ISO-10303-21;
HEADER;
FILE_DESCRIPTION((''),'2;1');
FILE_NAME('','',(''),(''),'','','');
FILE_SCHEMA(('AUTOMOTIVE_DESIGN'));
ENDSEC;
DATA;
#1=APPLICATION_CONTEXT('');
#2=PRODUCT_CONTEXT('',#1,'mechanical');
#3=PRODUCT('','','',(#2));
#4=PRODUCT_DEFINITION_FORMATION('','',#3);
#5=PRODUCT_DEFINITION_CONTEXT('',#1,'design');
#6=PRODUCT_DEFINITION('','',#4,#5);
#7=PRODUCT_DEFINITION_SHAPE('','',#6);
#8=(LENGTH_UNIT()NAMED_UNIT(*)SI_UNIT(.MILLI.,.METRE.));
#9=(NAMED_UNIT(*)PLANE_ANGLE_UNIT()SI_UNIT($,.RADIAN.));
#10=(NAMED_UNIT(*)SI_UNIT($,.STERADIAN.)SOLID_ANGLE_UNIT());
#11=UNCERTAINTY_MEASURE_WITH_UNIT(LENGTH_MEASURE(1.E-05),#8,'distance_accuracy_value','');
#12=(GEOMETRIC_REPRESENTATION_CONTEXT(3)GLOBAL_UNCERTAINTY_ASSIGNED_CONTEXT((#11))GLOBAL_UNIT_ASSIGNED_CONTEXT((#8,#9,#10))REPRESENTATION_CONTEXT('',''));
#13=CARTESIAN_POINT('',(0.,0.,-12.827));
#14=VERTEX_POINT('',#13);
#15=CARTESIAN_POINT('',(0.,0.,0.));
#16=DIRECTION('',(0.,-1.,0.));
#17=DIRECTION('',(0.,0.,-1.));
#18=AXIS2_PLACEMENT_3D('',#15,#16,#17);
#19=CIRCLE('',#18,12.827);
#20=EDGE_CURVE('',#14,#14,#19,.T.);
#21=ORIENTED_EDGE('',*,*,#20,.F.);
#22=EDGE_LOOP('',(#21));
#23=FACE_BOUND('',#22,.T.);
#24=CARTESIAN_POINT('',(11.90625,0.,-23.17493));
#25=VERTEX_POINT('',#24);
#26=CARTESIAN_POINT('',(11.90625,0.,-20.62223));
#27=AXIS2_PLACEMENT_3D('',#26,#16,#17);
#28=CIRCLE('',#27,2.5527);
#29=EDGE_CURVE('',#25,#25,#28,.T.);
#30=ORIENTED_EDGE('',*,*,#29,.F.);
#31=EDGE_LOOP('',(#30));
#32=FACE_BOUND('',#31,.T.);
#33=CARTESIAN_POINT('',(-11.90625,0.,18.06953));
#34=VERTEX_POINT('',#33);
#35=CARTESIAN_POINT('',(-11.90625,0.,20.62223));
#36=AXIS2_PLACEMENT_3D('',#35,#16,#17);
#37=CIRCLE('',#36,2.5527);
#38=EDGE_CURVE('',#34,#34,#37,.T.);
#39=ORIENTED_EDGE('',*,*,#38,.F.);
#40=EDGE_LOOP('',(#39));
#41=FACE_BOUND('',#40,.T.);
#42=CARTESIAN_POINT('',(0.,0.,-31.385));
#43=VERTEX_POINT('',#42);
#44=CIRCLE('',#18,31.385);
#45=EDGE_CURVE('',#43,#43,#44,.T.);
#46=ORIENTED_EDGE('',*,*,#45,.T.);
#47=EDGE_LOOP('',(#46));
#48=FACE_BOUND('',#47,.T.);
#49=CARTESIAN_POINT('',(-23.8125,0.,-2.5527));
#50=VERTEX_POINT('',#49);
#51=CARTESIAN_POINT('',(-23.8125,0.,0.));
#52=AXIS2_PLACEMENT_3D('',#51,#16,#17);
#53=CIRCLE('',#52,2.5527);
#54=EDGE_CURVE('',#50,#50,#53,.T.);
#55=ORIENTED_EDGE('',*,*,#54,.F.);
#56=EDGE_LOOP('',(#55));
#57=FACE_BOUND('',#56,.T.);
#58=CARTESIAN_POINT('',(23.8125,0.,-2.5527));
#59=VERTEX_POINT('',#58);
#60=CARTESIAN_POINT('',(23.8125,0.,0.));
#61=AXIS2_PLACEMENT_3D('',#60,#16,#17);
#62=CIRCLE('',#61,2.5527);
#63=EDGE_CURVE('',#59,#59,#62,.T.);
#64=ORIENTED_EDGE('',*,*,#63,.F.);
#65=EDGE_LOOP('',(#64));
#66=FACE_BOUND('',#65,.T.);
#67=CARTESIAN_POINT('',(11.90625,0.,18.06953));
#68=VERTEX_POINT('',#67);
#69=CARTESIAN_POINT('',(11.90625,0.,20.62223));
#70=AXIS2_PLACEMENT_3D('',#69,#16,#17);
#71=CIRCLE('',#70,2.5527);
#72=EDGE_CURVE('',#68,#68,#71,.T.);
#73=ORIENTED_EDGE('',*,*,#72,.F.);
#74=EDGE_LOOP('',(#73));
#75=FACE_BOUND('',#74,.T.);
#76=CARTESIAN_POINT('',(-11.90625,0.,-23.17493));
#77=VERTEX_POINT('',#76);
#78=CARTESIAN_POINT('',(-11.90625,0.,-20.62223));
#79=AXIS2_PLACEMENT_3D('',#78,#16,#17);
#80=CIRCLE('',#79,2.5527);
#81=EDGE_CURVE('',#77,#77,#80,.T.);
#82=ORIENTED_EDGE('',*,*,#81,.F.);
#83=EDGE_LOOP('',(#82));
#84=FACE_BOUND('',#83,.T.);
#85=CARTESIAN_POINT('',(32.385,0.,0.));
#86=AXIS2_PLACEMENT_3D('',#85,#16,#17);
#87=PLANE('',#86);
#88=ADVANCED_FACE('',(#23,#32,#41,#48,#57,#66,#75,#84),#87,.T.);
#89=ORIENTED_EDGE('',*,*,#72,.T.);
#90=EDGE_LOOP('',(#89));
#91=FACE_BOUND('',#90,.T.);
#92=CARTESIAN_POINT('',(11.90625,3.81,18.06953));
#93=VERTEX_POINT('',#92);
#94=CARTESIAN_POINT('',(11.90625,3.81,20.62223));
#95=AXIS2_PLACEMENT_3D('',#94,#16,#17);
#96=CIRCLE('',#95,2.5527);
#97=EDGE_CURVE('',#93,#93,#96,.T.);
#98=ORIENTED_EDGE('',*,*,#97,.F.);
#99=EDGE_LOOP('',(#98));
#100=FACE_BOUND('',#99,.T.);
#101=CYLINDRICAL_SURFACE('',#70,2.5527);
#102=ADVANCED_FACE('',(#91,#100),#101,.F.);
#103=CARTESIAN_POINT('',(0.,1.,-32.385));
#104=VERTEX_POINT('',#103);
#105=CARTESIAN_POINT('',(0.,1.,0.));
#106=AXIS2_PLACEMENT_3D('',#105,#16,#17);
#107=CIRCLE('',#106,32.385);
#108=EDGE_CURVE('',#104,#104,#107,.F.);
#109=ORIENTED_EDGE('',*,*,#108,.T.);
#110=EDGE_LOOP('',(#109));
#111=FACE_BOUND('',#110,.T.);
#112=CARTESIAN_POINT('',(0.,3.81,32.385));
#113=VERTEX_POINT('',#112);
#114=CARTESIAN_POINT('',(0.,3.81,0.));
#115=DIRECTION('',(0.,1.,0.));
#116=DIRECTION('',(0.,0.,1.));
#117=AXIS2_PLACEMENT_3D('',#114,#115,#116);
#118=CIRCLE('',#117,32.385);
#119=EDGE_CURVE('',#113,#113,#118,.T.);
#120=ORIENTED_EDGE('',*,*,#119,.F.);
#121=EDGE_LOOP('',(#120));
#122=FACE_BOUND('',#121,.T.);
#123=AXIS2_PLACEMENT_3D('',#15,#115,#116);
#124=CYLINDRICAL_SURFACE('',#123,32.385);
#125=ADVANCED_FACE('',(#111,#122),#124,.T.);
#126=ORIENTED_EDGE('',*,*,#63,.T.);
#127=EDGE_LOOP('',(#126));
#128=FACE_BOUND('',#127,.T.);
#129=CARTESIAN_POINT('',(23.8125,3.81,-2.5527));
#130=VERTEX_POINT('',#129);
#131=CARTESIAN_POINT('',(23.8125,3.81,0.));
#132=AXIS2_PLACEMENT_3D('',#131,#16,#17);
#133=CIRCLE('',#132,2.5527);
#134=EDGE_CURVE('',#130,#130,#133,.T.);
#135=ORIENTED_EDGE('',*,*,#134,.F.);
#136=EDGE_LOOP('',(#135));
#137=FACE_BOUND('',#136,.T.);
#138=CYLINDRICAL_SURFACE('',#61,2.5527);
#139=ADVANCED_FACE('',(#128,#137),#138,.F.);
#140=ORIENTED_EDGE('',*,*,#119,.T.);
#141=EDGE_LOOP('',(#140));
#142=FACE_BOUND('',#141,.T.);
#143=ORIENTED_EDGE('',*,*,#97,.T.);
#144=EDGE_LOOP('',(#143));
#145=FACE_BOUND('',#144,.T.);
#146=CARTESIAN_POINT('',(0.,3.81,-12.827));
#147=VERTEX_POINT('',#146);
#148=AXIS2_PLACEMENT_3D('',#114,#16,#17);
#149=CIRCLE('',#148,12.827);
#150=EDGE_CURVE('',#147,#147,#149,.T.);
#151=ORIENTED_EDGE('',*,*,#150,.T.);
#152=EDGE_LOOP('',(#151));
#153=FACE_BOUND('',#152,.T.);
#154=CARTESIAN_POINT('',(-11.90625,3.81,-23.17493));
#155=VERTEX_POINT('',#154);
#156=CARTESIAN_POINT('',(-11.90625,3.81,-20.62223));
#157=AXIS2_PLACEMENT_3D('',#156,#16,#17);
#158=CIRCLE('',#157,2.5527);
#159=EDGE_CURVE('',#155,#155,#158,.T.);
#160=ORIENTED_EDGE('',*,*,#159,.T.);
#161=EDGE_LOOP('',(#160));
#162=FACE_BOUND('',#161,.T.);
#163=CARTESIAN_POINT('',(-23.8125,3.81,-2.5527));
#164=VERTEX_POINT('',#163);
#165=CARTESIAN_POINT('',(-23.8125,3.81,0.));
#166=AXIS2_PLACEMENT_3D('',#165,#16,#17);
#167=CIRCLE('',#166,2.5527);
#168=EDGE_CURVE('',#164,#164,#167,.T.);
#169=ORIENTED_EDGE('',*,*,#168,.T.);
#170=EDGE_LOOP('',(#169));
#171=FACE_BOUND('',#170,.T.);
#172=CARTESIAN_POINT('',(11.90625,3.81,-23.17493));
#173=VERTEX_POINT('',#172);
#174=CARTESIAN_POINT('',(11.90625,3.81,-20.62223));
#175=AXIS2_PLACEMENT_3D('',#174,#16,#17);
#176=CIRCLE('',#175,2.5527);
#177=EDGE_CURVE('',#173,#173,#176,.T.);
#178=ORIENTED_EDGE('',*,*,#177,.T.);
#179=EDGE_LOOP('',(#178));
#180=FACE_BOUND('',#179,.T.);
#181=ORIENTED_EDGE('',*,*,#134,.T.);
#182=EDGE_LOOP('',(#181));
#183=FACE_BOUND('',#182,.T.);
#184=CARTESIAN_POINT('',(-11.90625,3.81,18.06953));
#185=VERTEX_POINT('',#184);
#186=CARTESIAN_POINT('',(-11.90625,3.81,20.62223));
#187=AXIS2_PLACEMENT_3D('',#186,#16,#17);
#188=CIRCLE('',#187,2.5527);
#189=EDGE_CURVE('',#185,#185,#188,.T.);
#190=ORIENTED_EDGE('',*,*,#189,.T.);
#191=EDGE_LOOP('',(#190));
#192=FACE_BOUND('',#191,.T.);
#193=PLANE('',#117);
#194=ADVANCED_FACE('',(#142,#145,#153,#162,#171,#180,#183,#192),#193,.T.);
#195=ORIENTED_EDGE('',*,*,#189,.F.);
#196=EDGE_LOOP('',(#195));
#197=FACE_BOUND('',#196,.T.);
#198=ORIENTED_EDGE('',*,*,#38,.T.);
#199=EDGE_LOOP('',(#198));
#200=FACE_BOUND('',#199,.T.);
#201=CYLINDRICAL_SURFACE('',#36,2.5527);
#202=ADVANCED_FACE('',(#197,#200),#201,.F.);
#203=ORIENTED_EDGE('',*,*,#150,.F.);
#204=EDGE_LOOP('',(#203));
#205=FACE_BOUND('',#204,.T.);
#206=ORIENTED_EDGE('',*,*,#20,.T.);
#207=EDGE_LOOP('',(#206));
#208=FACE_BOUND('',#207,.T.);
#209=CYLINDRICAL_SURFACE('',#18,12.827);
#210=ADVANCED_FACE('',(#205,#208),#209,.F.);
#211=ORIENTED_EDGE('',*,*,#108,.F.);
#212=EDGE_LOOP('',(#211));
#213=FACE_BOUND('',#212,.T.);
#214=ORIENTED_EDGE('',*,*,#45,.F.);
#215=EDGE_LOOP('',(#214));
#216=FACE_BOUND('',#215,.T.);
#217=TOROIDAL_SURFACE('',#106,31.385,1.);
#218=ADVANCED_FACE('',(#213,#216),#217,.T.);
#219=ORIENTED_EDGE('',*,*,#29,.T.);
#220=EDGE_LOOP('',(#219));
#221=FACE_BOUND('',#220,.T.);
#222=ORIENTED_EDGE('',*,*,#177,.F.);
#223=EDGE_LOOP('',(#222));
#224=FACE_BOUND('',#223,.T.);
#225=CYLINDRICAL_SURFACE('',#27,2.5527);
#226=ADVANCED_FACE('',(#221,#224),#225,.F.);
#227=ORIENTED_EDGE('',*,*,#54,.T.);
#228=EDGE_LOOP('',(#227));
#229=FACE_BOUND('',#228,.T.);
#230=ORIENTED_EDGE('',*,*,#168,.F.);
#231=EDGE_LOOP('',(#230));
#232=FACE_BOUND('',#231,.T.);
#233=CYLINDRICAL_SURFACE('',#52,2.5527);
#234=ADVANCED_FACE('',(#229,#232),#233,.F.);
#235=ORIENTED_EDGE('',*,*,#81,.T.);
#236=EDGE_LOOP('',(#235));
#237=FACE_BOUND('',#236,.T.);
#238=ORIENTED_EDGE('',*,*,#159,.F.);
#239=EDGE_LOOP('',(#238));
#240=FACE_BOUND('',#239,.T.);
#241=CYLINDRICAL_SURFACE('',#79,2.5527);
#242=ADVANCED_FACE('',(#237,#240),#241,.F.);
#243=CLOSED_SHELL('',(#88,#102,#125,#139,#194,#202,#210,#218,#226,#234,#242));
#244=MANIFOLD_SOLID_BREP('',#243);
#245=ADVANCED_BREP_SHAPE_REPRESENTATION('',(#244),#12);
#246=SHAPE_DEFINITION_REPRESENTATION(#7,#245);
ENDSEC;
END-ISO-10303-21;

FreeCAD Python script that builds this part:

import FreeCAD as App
import Part
import Sketcher
from FreeCAD import Vector
Q = App.Units.Quantity


def edges_at(feature, points):
    """Names of the edges that pass closest to the given points."""
    edges = feature.Shape.Edges
    near = lambda p: min(range(len(edges)), key=lambda i: edges[i].distToShape(Part.Vertex(*p))[0])
    return sorted({f"Edge{near(p) + 1}" for p in points})

doc = App.newDocument("Part")
params = doc.addObject("Spreadsheet::Sheet", "Params")
for row, (alias, value) in enumerate([
    ("sketch1_height", "0.15 in"),
    ("sketch1_width", "1.275 in"),
    ("revolution_angle", "360 deg"),
    ("sketch2_diameter", "0.201 in"),
    ("hole_diameter", "0.201 in"),
    ("hole_depth", "0.15 in"),
    ("sketch3_diameter", "1.01 in"),
    ("hole2_diameter", "1.01 in"),
    ("hole2_depth", "0.15 in"),
    ("fillet_radius", "1 mm"),
], start=1):
    params.set(f"A{row}", alias)
    params.set(f"B{row}", "=" + value)
    params.setAlias(f"B{row}", alias)

body = doc.addObject("PartDesign::Body", "Body")

sketch1 = doc.addObject("Sketcher::SketchObject", "Sketch")
body.addObject(sketch1)
sketch1.AttachmentSupport = (doc.XY_Plane, [""])
sketch1.MapMode = "FlatFace"
sketch1.addGeometry([
    Part.LineSegment(Vector(32.4, 3.8, 0), Vector(32.4, 0, 0)),
    Part.LineSegment(Vector(32.4, 0, 0), Vector(0, 0, 0)),
    Part.LineSegment(Vector(0, 0, 0), Vector(0, 3.8, 0)),
    Part.LineSegment(Vector(0, 3.8, 0), Vector(32.4, 3.8, 0)),
], False)
sketch1.addConstraint([
    Sketcher.Constraint("Coincident", 0, 2, 1, 1),
    Sketcher.Constraint("Coincident", 1, 2, 2, 1),
    Sketcher.Constraint("Coincident", 2, 2, 3, 1),
    Sketcher.Constraint("Coincident", 3, 2, 0, 1),
    Sketcher.Constraint("Vertical", 0),
    Sketcher.Constraint("Horizontal", 1),
    Sketcher.Constraint("Vertical", 2),
    Sketcher.Constraint("Horizontal", 3),
    Sketcher.Constraint("Coincident", 1, 2, -1, 1),
    Sketcher.Constraint("DistanceY", 0, 2, 0, 1, Q("0.15 in")),
    Sketcher.Constraint("DistanceX", 1, 2, 1, 1, Q("1.275 in")),
])
sketch1.setExpression("Constraints[9]", "Params.sketch1_height")
sketch1.setExpression("Constraints[10]", "Params.sketch1_width")
revolution = doc.addObject("PartDesign::Revolution", "Revolution")
body.addObject(revolution)
revolution.Profile = sketch1
revolution.ReferenceAxis = (sketch1, ["V_Axis"])
revolution.setExpression("Angle", "Params.revolution_angle")

sketch2 = doc.addObject("Sketcher::SketchObject", "Sketch001")
body.addObject(sketch2)
sketch2.AttachmentSupport = (doc.XZ_Plane, [""])
sketch2.MapMode = "FlatFace"
sketch2.addGeometry([
    Part.Circle(Vector(-11.9, -20.6, 0), Vector(0, 0, 1), 2.6),
    Part.Circle(Vector(11.9, -20.6, 0), Vector(0, 0, 1), 2.6),
    Part.Circle(Vector(23.8, 0, 0), Vector(0, 0, 1), 2.6),
    Part.Circle(Vector(11.9, 20.6, 0), Vector(0, 0, 1), 2.6),
    Part.Circle(Vector(-11.9, 20.6, 0), Vector(0, 0, 1), 2.6),
    Part.Circle(Vector(-23.8, 0, 0), Vector(0, 0, 1), 2.6),
], False)
sketch2.addConstraint([
    Sketcher.Constraint("Equal", 0, 1),
    Sketcher.Constraint("Equal", 1, 2),
    Sketcher.Constraint("Equal", 2, 3),
    Sketcher.Constraint("Equal", 3, 4),
    Sketcher.Constraint("Equal", 4, 5),
    Sketcher.Constraint("Symmetric", 0, 3, 3, 3, -1, 1),
    Sketcher.Constraint("Symmetric", 1, 3, 4, 3, -1, 1),
    Sketcher.Constraint("Symmetric", 2, 3, 5, 3, -1, 1),
    Sketcher.Constraint("Symmetric", 0, 3, 1, 3, -2),
    Sketcher.Constraint("PointOnObject", 2, 3, -1),
    Sketcher.Constraint("Diameter", 0, Q("0.201 in")),
    Sketcher.Constraint("DistanceX", 0, 3, -1, 1, Q("0.46875 in")),
    Sketcher.Constraint("DistanceX", -1, 1, 2, 3, Q("0.9375 in")),
    Sketcher.Constraint("DistanceY", 0, 3, -1, 1, Q("20.62223 mm")),
])
sketch2.setExpression("Constraints[10]", "Params.sketch2_diameter")
doc.recompute()
hole = doc.addObject("PartDesign::Hole", "Hole")
body.addObject(hole)
hole.Profile = sketch2
hole.ThreadType = "None"
hole.setExpression("Diameter", "Params.hole_diameter")
hole.DepthType = "Dimension"
hole.setExpression("Depth", "Params.hole_depth")
hole.DrillPoint = "Flat"

sketch3 = doc.addObject("Sketcher::SketchObject", "Sketch002")
body.addObject(sketch3)
sketch3.AttachmentSupport = (doc.XZ_Plane, [""])
sketch3.MapMode = "FlatFace"
sketch3.addGeometry(Part.Circle(Vector(0, 0, 0), Vector(0, 0, 1), 13), False)
sketch3.addConstraint([
    Sketcher.Constraint("Coincident", 0, 3, -1, 1),
    Sketcher.Constraint("Diameter", 0, Q("1.01 in")),
])
sketch3.setExpression("Constraints[1]", "Params.sketch3_diameter")
doc.recompute()
hole2 = doc.addObject("PartDesign::Hole", "Hole001")
body.addObject(hole2)
hole2.Profile = sketch3
hole2.ThreadType = "None"
hole2.setExpression("Diameter", "Params.hole2_diameter")
hole2.DepthType = "Dimension"
hole2.setExpression("Depth", "Params.hole2_depth")
hole2.DrillPoint = "Flat"
doc.recompute()

fillet = doc.addObject("PartDesign::Fillet", "Fillet")
body.addObject(fillet)
fillet.Base = (hole2, edges_at(hole2, [(-32.385, 0, 0)]))
fillet.setExpression("Radius", "Params.fillet_radius")

doc.recompute()
